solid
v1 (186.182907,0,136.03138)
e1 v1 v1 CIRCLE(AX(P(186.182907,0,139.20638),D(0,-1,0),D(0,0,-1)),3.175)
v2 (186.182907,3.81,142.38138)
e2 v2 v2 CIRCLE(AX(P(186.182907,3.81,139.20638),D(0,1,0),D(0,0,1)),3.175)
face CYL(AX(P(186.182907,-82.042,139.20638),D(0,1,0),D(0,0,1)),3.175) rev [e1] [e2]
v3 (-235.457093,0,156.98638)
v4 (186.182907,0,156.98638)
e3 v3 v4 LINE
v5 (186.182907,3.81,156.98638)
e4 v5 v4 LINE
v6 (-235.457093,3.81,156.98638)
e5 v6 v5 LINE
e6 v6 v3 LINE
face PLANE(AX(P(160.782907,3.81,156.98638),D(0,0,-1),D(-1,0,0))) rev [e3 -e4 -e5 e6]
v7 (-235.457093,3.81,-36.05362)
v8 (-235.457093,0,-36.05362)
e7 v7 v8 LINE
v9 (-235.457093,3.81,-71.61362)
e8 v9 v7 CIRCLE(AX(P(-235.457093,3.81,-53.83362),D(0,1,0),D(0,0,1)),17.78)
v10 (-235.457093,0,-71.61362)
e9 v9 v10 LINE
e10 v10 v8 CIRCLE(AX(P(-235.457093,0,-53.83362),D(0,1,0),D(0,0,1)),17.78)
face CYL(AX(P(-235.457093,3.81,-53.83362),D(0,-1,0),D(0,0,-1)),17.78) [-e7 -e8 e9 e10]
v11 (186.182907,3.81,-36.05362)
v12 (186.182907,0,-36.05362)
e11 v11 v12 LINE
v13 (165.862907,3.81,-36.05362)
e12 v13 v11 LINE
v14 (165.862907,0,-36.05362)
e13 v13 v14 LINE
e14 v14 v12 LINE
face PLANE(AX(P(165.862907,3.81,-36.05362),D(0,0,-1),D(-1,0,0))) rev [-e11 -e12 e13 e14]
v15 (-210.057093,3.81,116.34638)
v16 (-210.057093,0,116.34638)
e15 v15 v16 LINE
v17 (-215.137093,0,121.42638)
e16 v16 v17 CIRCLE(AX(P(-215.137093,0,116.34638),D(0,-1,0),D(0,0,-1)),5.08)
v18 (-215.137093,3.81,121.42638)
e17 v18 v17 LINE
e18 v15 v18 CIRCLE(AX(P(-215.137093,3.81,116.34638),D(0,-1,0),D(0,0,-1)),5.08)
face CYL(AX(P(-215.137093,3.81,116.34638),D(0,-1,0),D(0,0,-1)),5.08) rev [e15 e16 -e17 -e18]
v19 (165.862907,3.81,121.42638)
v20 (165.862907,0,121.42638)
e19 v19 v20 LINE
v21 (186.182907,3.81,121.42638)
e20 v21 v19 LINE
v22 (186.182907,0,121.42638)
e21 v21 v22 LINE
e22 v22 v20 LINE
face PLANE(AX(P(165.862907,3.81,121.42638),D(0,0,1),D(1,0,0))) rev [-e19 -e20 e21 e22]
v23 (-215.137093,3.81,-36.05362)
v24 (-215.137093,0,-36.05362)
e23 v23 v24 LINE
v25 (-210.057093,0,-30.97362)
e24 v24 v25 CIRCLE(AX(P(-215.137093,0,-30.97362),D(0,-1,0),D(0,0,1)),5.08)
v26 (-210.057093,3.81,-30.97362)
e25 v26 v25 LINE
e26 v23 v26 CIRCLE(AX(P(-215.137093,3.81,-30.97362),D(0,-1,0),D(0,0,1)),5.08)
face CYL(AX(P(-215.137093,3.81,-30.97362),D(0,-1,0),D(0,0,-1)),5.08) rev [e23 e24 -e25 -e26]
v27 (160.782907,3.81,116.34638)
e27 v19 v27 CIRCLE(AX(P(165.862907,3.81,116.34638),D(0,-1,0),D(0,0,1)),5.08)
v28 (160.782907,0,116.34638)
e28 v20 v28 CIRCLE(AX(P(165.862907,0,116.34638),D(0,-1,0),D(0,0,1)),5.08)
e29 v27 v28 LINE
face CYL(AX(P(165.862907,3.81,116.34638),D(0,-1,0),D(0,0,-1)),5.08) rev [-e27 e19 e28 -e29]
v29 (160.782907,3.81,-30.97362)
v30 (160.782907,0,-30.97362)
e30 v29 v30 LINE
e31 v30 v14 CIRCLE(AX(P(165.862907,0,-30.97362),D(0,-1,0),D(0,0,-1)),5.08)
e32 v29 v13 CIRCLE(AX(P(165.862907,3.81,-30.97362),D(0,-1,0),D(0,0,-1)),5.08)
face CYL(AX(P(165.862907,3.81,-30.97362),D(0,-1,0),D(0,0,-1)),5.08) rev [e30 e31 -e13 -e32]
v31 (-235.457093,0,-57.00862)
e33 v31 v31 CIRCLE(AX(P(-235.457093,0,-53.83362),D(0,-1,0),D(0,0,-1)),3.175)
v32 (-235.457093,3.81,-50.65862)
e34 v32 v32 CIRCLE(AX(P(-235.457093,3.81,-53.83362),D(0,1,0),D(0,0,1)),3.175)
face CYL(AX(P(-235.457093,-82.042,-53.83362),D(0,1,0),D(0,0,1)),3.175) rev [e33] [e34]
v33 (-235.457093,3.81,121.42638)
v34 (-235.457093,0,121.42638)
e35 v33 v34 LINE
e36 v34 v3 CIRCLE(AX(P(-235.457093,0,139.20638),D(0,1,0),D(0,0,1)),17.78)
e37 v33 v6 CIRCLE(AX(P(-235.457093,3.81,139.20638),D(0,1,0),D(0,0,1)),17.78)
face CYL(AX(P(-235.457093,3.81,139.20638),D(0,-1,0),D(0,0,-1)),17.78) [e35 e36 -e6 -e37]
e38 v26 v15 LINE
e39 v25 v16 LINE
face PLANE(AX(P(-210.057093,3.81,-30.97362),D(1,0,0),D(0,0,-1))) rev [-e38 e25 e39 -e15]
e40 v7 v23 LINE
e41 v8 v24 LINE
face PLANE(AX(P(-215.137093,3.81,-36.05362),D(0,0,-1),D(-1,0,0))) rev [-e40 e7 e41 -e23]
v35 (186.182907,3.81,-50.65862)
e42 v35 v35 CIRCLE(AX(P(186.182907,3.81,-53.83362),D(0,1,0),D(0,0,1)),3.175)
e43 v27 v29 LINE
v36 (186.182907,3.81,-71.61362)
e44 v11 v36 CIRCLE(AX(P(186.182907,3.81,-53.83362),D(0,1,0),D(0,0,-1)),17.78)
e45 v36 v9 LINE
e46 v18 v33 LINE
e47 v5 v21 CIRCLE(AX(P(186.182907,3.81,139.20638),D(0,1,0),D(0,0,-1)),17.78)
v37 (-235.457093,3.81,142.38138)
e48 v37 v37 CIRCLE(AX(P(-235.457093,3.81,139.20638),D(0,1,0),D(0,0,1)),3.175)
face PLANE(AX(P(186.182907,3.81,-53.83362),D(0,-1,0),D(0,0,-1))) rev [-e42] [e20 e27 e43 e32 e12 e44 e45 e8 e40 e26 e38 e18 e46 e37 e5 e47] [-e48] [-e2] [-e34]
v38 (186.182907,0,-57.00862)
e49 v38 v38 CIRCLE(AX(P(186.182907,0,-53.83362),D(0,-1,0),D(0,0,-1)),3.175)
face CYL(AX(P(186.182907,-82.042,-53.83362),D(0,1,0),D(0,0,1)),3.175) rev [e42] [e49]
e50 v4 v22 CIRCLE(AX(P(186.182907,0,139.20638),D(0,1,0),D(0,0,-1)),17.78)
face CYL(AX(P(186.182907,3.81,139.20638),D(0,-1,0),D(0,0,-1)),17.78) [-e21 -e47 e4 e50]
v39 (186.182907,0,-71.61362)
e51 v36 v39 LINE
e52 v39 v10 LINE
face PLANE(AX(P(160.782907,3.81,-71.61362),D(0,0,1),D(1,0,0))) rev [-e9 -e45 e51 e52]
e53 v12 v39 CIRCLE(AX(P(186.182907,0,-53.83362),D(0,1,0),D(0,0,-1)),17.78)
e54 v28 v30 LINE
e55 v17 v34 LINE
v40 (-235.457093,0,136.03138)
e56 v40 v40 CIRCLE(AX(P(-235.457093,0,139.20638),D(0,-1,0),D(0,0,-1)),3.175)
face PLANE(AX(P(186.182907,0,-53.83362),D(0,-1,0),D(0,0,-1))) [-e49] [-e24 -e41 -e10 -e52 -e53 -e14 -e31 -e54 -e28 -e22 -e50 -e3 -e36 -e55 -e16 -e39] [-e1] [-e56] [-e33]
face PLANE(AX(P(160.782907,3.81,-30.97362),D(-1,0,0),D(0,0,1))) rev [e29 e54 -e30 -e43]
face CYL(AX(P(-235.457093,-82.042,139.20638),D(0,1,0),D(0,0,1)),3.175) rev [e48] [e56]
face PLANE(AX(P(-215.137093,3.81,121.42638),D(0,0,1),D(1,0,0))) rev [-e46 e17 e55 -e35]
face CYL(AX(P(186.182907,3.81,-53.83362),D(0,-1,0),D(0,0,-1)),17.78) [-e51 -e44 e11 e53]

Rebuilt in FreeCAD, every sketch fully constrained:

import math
import FreeCAD as App
import Part
import Sketcher

V = App.Vector
Q = App.Units.Quantity

doc = App.newDocument("Part")
body = doc.addObject("PartDesign::Body", "Body")

# Sketch on XZ plane
sketch1 = body.newObject("Sketcher::SketchObject", "Sketch")
sketch1.AttachmentSupport = (doc.getObject("XZ_Plane"), [""])
sketch1.MapMode = "FlatFace"
sketch1.addGeometry(Part.ArcOfCircle(Part.Circle(V(-235, -54, 0), V(0, 0, 1), 18), math.radians(90), math.radians(270)), False)
sketch1.addGeometry(Part.LineSegment(V(-235, -36, 0), V(-215, -36, 0)), False)
sketch1.addGeometry(Part.ArcOfCircle(Part.Circle(V(-215, -31, 0), V(0, 0, 1), 5), math.radians(-90), math.radians(0)), False)
sketch1.addGeometry(Part.LineSegment(V(-210, -31, 0), V(-210, 116, 0)), False)
sketch1.addGeometry(Part.ArcOfCircle(Part.Circle(V(-215, 116, 0), V(0, 0, 1), 5), math.radians(0), math.radians(90)), False)
sketch1.addGeometry(Part.LineSegment(V(-215, 121, 0), V(-235, 121, 0)), False)
sketch1.addGeometry(Part.ArcOfCircle(Part.Circle(V(-235, 139, 0), V(0, 0, 1), 18), math.radians(90), math.radians(270)), False)
sketch1.addGeometry(Part.LineSegment(V(-235, 157, 0), V(186, 157, 0)), False)
sketch1.addGeometry(Part.ArcOfCircle(Part.Circle(V(186, 139, 0), V(0, 0, 1), 18), math.radians(-90), math.radians(90)), False)
sketch1.addGeometry(Part.LineSegment(V(186, 121, 0), V(166, 121, 0)), False)
sketch1.addGeometry(Part.ArcOfCircle(Part.Circle(V(166, 116, 0), V(0, 0, 1), 5), math.radians(90), math.radians(180)), False)
sketch1.addGeometry(Part.LineSegment(V(161, 116, 0), V(161, -31, 0)), False)
sketch1.addGeometry(Part.ArcOfCircle(Part.Circle(V(166, -31, 0), V(0, 0, 1), 5), math.radians(180), math.radians(270)), False)
sketch1.addGeometry(Part.LineSegment(V(166, -36, 0), V(186, -36, 0)), False)
sketch1.addGeometry(Part.ArcOfCircle(Part.Circle(V(186, -54, 0), V(0, 0, 1), 18), math.radians(-90), math.radians(90)), False)
sketch1.addGeometry(Part.LineSegment(V(186, -72, 0), V(-235, -72, 0)), False)
sketch1.addConstraint(Sketcher.Constraint("Tangent", 0, 1, 1, 1))
sketch1.addConstraint(Sketcher.Constraint("Tangent", 1, 2, 2, 1))
sketch1.addConstraint(Sketcher.Constraint("Tangent", 2, 2, 3, 1))
sketch1.addConstraint(Sketcher.Constraint("Tangent", 3, 2, 4, 1))
sketch1.addConstraint(Sketcher.Constraint("Tangent", 4, 2, 5, 1))
sketch1.addConstraint(Sketcher.Constraint("Tangent", 5, 2, 6, 2))
sketch1.addConstraint(Sketcher.Constraint("Tangent", 6, 1, 7, 1))
sketch1.addConstraint(Sketcher.Constraint("Tangent", 7, 2, 8, 2))
sketch1.addConstraint(Sketcher.Constraint("Tangent", 8, 1, 9, 1))
sketch1.addConstraint(Sketcher.Constraint("Tangent", 9, 2, 10, 1))
sketch1.addConstraint(Sketcher.Constraint("Tangent", 10, 2, 11, 1))
sketch1.addConstraint(Sketcher.Constraint("Tangent", 11, 2, 12, 1))
sketch1.addConstraint(Sketcher.Constraint("Tangent", 12, 2, 13, 1))
sketch1.addConstraint(Sketcher.Constraint("Tangent", 13, 2, 14, 2))
sketch1.addConstraint(Sketcher.Constraint("Tangent", 14, 1, 15, 1))
sketch1.addConstraint(Sketcher.Constraint("Tangent", 15, 2, 0, 2))
sketch1.addConstraint(Sketcher.Constraint("Horizontal", 1))
sketch1.addConstraint(Sketcher.Constraint("Vertical", 3))
sketch1.addConstraint(Sketcher.Constraint("Horizontal", 5))
sketch1.addConstraint(Sketcher.Constraint("Horizontal", 7))
sketch1.addConstraint(Sketcher.Constraint("Horizontal", 9))
sketch1.addConstraint(Sketcher.Constraint("Vertical", 11))
sketch1.addConstraint(Sketcher.Constraint("Horizontal", 13))
sketch1.addConstraint(Sketcher.Constraint("Horizontal", 15))
sketch1.addConstraint(Sketcher.Constraint("Equal", 2, 4))
sketch1.addConstraint(Sketcher.Constraint("Equal", 0, 6))
sketch1.addConstraint(Sketcher.Constraint("Equal", 6, 8))
sketch1.addConstraint(Sketcher.Constraint("Equal", 4, 10))
sketch1.addConstraint(Sketcher.Constraint("Equal", 10, 12))
sketch1.addConstraint(Sketcher.Constraint("Equal", 8, 14))
sketch1.addConstraint(Sketcher.Constraint("Vertical", 0, 3, 6, 3))
sketch1.addConstraint(Sketcher.Constraint("Vertical", 8, 3, 14, 3))
sketch1.addConstraint(Sketcher.Constraint("Equal", 5, 9))
sketch1.addConstraint(Sketcher.Constraint("Radius", 0, Q("0.7 in")))
sketch1.addConstraint(Sketcher.Constraint("Radius", 2, Q("0.2 in")))
sketch1.addConstraint(Sketcher.Constraint("DistanceX", 1, 1, 1, 2, Q("0.8 in")))
sketch1.addConstraint(Sketcher.Constraint("DistanceX", 7, 1, 7, 2, Q("16.6 in")))
sketch1.addConstraint(Sketcher.Constraint("DistanceY", 3, 1, 3, 2, Q("5.8 in")))
sketch1.addConstraint(Sketcher.Constraint("DistanceY", 0, 3, -1, 1, Q("53.83362 mm")))
sketch1.addConstraint(Sketcher.Constraint("DistanceX", 0, 3, -1, 1, Q("235.457093 mm")))
pad1 = body.newObject("PartDesign::Pad", "Pad")
pad1.Profile = sketch1
pad1.Length = Q("0.15 in")
pad1.Reversed = True

# Sketch on XZ plane
sketch2 = body.newObject("Sketcher::SketchObject", "Sketch001")
sketch2.AttachmentSupport = (doc.getObject("XZ_Plane"), [""])
sketch2.MapMode = "FlatFace"
sketch2.AttachmentOffset = App.Placement(V(0, 0, -0.15 * 25.4), App.Rotation())
sketch2.addGeometry(Part.Circle(V(-235.5, -53.8, 0), V(0, 0, 1), 3.2), False)
sketch2.addGeometry(Part.Circle(V(186.2, -53.8, 0), V(0, 0, 1), 3.2), False)
sketch2.addGeometry(Part.Circle(V(186.2, 139.2, 0), V(0, 0, 1), 3.2), False)
sketch2.addGeometry(Part.Circle(V(-235.5, 139.2, 0), V(0, 0, 1), 3.2), False)
sketch2.addConstraint(Sketcher.Constraint("Equal", 0, 1))
sketch2.addConstraint(Sketcher.Constraint("Equal", 1, 2))
sketch2.addConstraint(Sketcher.Constraint("Equal", 2, 3))
sketch2.addConstraint(Sketcher.Constraint("Horizontal", 0, 3, 1, 3))
sketch2.addConstraint(Sketcher.Constraint("Horizontal", 2, 3, 3, 3))
sketch2.addConstraint(Sketcher.Constraint("Vertical", 1, 3, 2, 3))
sketch2.addConstraint(Sketcher.Constraint("Vertical", 0, 3, 3, 3))
sketch2.addConstraint(Sketcher.Constraint("Diameter", 0, Q("0.25 in")))
sketch2.addConstraint(Sketcher.Constraint("DistanceX", 0, 3, 1, 3, Q("16.6 in")))
sketch2.addConstraint(Sketcher.Constraint("DistanceY", 1, 3, 2, 3, Q("7.6 in")))
sketch2.addConstraint(Sketcher.Constraint("DistanceY", 0, 3, -1, 1, Q("53.83362 mm")))
sketch2.addConstraint(Sketcher.Constraint("DistanceX", 0, 3, -1, 1, Q("235.457093 mm")))
pocket1 = body.newObject("PartDesign::Pocket", "Pocket")
pocket1.Profile = sketch2
pocket1.Length = Q("3.38 in")
pocket1.Reversed = True

doc.recompute()
